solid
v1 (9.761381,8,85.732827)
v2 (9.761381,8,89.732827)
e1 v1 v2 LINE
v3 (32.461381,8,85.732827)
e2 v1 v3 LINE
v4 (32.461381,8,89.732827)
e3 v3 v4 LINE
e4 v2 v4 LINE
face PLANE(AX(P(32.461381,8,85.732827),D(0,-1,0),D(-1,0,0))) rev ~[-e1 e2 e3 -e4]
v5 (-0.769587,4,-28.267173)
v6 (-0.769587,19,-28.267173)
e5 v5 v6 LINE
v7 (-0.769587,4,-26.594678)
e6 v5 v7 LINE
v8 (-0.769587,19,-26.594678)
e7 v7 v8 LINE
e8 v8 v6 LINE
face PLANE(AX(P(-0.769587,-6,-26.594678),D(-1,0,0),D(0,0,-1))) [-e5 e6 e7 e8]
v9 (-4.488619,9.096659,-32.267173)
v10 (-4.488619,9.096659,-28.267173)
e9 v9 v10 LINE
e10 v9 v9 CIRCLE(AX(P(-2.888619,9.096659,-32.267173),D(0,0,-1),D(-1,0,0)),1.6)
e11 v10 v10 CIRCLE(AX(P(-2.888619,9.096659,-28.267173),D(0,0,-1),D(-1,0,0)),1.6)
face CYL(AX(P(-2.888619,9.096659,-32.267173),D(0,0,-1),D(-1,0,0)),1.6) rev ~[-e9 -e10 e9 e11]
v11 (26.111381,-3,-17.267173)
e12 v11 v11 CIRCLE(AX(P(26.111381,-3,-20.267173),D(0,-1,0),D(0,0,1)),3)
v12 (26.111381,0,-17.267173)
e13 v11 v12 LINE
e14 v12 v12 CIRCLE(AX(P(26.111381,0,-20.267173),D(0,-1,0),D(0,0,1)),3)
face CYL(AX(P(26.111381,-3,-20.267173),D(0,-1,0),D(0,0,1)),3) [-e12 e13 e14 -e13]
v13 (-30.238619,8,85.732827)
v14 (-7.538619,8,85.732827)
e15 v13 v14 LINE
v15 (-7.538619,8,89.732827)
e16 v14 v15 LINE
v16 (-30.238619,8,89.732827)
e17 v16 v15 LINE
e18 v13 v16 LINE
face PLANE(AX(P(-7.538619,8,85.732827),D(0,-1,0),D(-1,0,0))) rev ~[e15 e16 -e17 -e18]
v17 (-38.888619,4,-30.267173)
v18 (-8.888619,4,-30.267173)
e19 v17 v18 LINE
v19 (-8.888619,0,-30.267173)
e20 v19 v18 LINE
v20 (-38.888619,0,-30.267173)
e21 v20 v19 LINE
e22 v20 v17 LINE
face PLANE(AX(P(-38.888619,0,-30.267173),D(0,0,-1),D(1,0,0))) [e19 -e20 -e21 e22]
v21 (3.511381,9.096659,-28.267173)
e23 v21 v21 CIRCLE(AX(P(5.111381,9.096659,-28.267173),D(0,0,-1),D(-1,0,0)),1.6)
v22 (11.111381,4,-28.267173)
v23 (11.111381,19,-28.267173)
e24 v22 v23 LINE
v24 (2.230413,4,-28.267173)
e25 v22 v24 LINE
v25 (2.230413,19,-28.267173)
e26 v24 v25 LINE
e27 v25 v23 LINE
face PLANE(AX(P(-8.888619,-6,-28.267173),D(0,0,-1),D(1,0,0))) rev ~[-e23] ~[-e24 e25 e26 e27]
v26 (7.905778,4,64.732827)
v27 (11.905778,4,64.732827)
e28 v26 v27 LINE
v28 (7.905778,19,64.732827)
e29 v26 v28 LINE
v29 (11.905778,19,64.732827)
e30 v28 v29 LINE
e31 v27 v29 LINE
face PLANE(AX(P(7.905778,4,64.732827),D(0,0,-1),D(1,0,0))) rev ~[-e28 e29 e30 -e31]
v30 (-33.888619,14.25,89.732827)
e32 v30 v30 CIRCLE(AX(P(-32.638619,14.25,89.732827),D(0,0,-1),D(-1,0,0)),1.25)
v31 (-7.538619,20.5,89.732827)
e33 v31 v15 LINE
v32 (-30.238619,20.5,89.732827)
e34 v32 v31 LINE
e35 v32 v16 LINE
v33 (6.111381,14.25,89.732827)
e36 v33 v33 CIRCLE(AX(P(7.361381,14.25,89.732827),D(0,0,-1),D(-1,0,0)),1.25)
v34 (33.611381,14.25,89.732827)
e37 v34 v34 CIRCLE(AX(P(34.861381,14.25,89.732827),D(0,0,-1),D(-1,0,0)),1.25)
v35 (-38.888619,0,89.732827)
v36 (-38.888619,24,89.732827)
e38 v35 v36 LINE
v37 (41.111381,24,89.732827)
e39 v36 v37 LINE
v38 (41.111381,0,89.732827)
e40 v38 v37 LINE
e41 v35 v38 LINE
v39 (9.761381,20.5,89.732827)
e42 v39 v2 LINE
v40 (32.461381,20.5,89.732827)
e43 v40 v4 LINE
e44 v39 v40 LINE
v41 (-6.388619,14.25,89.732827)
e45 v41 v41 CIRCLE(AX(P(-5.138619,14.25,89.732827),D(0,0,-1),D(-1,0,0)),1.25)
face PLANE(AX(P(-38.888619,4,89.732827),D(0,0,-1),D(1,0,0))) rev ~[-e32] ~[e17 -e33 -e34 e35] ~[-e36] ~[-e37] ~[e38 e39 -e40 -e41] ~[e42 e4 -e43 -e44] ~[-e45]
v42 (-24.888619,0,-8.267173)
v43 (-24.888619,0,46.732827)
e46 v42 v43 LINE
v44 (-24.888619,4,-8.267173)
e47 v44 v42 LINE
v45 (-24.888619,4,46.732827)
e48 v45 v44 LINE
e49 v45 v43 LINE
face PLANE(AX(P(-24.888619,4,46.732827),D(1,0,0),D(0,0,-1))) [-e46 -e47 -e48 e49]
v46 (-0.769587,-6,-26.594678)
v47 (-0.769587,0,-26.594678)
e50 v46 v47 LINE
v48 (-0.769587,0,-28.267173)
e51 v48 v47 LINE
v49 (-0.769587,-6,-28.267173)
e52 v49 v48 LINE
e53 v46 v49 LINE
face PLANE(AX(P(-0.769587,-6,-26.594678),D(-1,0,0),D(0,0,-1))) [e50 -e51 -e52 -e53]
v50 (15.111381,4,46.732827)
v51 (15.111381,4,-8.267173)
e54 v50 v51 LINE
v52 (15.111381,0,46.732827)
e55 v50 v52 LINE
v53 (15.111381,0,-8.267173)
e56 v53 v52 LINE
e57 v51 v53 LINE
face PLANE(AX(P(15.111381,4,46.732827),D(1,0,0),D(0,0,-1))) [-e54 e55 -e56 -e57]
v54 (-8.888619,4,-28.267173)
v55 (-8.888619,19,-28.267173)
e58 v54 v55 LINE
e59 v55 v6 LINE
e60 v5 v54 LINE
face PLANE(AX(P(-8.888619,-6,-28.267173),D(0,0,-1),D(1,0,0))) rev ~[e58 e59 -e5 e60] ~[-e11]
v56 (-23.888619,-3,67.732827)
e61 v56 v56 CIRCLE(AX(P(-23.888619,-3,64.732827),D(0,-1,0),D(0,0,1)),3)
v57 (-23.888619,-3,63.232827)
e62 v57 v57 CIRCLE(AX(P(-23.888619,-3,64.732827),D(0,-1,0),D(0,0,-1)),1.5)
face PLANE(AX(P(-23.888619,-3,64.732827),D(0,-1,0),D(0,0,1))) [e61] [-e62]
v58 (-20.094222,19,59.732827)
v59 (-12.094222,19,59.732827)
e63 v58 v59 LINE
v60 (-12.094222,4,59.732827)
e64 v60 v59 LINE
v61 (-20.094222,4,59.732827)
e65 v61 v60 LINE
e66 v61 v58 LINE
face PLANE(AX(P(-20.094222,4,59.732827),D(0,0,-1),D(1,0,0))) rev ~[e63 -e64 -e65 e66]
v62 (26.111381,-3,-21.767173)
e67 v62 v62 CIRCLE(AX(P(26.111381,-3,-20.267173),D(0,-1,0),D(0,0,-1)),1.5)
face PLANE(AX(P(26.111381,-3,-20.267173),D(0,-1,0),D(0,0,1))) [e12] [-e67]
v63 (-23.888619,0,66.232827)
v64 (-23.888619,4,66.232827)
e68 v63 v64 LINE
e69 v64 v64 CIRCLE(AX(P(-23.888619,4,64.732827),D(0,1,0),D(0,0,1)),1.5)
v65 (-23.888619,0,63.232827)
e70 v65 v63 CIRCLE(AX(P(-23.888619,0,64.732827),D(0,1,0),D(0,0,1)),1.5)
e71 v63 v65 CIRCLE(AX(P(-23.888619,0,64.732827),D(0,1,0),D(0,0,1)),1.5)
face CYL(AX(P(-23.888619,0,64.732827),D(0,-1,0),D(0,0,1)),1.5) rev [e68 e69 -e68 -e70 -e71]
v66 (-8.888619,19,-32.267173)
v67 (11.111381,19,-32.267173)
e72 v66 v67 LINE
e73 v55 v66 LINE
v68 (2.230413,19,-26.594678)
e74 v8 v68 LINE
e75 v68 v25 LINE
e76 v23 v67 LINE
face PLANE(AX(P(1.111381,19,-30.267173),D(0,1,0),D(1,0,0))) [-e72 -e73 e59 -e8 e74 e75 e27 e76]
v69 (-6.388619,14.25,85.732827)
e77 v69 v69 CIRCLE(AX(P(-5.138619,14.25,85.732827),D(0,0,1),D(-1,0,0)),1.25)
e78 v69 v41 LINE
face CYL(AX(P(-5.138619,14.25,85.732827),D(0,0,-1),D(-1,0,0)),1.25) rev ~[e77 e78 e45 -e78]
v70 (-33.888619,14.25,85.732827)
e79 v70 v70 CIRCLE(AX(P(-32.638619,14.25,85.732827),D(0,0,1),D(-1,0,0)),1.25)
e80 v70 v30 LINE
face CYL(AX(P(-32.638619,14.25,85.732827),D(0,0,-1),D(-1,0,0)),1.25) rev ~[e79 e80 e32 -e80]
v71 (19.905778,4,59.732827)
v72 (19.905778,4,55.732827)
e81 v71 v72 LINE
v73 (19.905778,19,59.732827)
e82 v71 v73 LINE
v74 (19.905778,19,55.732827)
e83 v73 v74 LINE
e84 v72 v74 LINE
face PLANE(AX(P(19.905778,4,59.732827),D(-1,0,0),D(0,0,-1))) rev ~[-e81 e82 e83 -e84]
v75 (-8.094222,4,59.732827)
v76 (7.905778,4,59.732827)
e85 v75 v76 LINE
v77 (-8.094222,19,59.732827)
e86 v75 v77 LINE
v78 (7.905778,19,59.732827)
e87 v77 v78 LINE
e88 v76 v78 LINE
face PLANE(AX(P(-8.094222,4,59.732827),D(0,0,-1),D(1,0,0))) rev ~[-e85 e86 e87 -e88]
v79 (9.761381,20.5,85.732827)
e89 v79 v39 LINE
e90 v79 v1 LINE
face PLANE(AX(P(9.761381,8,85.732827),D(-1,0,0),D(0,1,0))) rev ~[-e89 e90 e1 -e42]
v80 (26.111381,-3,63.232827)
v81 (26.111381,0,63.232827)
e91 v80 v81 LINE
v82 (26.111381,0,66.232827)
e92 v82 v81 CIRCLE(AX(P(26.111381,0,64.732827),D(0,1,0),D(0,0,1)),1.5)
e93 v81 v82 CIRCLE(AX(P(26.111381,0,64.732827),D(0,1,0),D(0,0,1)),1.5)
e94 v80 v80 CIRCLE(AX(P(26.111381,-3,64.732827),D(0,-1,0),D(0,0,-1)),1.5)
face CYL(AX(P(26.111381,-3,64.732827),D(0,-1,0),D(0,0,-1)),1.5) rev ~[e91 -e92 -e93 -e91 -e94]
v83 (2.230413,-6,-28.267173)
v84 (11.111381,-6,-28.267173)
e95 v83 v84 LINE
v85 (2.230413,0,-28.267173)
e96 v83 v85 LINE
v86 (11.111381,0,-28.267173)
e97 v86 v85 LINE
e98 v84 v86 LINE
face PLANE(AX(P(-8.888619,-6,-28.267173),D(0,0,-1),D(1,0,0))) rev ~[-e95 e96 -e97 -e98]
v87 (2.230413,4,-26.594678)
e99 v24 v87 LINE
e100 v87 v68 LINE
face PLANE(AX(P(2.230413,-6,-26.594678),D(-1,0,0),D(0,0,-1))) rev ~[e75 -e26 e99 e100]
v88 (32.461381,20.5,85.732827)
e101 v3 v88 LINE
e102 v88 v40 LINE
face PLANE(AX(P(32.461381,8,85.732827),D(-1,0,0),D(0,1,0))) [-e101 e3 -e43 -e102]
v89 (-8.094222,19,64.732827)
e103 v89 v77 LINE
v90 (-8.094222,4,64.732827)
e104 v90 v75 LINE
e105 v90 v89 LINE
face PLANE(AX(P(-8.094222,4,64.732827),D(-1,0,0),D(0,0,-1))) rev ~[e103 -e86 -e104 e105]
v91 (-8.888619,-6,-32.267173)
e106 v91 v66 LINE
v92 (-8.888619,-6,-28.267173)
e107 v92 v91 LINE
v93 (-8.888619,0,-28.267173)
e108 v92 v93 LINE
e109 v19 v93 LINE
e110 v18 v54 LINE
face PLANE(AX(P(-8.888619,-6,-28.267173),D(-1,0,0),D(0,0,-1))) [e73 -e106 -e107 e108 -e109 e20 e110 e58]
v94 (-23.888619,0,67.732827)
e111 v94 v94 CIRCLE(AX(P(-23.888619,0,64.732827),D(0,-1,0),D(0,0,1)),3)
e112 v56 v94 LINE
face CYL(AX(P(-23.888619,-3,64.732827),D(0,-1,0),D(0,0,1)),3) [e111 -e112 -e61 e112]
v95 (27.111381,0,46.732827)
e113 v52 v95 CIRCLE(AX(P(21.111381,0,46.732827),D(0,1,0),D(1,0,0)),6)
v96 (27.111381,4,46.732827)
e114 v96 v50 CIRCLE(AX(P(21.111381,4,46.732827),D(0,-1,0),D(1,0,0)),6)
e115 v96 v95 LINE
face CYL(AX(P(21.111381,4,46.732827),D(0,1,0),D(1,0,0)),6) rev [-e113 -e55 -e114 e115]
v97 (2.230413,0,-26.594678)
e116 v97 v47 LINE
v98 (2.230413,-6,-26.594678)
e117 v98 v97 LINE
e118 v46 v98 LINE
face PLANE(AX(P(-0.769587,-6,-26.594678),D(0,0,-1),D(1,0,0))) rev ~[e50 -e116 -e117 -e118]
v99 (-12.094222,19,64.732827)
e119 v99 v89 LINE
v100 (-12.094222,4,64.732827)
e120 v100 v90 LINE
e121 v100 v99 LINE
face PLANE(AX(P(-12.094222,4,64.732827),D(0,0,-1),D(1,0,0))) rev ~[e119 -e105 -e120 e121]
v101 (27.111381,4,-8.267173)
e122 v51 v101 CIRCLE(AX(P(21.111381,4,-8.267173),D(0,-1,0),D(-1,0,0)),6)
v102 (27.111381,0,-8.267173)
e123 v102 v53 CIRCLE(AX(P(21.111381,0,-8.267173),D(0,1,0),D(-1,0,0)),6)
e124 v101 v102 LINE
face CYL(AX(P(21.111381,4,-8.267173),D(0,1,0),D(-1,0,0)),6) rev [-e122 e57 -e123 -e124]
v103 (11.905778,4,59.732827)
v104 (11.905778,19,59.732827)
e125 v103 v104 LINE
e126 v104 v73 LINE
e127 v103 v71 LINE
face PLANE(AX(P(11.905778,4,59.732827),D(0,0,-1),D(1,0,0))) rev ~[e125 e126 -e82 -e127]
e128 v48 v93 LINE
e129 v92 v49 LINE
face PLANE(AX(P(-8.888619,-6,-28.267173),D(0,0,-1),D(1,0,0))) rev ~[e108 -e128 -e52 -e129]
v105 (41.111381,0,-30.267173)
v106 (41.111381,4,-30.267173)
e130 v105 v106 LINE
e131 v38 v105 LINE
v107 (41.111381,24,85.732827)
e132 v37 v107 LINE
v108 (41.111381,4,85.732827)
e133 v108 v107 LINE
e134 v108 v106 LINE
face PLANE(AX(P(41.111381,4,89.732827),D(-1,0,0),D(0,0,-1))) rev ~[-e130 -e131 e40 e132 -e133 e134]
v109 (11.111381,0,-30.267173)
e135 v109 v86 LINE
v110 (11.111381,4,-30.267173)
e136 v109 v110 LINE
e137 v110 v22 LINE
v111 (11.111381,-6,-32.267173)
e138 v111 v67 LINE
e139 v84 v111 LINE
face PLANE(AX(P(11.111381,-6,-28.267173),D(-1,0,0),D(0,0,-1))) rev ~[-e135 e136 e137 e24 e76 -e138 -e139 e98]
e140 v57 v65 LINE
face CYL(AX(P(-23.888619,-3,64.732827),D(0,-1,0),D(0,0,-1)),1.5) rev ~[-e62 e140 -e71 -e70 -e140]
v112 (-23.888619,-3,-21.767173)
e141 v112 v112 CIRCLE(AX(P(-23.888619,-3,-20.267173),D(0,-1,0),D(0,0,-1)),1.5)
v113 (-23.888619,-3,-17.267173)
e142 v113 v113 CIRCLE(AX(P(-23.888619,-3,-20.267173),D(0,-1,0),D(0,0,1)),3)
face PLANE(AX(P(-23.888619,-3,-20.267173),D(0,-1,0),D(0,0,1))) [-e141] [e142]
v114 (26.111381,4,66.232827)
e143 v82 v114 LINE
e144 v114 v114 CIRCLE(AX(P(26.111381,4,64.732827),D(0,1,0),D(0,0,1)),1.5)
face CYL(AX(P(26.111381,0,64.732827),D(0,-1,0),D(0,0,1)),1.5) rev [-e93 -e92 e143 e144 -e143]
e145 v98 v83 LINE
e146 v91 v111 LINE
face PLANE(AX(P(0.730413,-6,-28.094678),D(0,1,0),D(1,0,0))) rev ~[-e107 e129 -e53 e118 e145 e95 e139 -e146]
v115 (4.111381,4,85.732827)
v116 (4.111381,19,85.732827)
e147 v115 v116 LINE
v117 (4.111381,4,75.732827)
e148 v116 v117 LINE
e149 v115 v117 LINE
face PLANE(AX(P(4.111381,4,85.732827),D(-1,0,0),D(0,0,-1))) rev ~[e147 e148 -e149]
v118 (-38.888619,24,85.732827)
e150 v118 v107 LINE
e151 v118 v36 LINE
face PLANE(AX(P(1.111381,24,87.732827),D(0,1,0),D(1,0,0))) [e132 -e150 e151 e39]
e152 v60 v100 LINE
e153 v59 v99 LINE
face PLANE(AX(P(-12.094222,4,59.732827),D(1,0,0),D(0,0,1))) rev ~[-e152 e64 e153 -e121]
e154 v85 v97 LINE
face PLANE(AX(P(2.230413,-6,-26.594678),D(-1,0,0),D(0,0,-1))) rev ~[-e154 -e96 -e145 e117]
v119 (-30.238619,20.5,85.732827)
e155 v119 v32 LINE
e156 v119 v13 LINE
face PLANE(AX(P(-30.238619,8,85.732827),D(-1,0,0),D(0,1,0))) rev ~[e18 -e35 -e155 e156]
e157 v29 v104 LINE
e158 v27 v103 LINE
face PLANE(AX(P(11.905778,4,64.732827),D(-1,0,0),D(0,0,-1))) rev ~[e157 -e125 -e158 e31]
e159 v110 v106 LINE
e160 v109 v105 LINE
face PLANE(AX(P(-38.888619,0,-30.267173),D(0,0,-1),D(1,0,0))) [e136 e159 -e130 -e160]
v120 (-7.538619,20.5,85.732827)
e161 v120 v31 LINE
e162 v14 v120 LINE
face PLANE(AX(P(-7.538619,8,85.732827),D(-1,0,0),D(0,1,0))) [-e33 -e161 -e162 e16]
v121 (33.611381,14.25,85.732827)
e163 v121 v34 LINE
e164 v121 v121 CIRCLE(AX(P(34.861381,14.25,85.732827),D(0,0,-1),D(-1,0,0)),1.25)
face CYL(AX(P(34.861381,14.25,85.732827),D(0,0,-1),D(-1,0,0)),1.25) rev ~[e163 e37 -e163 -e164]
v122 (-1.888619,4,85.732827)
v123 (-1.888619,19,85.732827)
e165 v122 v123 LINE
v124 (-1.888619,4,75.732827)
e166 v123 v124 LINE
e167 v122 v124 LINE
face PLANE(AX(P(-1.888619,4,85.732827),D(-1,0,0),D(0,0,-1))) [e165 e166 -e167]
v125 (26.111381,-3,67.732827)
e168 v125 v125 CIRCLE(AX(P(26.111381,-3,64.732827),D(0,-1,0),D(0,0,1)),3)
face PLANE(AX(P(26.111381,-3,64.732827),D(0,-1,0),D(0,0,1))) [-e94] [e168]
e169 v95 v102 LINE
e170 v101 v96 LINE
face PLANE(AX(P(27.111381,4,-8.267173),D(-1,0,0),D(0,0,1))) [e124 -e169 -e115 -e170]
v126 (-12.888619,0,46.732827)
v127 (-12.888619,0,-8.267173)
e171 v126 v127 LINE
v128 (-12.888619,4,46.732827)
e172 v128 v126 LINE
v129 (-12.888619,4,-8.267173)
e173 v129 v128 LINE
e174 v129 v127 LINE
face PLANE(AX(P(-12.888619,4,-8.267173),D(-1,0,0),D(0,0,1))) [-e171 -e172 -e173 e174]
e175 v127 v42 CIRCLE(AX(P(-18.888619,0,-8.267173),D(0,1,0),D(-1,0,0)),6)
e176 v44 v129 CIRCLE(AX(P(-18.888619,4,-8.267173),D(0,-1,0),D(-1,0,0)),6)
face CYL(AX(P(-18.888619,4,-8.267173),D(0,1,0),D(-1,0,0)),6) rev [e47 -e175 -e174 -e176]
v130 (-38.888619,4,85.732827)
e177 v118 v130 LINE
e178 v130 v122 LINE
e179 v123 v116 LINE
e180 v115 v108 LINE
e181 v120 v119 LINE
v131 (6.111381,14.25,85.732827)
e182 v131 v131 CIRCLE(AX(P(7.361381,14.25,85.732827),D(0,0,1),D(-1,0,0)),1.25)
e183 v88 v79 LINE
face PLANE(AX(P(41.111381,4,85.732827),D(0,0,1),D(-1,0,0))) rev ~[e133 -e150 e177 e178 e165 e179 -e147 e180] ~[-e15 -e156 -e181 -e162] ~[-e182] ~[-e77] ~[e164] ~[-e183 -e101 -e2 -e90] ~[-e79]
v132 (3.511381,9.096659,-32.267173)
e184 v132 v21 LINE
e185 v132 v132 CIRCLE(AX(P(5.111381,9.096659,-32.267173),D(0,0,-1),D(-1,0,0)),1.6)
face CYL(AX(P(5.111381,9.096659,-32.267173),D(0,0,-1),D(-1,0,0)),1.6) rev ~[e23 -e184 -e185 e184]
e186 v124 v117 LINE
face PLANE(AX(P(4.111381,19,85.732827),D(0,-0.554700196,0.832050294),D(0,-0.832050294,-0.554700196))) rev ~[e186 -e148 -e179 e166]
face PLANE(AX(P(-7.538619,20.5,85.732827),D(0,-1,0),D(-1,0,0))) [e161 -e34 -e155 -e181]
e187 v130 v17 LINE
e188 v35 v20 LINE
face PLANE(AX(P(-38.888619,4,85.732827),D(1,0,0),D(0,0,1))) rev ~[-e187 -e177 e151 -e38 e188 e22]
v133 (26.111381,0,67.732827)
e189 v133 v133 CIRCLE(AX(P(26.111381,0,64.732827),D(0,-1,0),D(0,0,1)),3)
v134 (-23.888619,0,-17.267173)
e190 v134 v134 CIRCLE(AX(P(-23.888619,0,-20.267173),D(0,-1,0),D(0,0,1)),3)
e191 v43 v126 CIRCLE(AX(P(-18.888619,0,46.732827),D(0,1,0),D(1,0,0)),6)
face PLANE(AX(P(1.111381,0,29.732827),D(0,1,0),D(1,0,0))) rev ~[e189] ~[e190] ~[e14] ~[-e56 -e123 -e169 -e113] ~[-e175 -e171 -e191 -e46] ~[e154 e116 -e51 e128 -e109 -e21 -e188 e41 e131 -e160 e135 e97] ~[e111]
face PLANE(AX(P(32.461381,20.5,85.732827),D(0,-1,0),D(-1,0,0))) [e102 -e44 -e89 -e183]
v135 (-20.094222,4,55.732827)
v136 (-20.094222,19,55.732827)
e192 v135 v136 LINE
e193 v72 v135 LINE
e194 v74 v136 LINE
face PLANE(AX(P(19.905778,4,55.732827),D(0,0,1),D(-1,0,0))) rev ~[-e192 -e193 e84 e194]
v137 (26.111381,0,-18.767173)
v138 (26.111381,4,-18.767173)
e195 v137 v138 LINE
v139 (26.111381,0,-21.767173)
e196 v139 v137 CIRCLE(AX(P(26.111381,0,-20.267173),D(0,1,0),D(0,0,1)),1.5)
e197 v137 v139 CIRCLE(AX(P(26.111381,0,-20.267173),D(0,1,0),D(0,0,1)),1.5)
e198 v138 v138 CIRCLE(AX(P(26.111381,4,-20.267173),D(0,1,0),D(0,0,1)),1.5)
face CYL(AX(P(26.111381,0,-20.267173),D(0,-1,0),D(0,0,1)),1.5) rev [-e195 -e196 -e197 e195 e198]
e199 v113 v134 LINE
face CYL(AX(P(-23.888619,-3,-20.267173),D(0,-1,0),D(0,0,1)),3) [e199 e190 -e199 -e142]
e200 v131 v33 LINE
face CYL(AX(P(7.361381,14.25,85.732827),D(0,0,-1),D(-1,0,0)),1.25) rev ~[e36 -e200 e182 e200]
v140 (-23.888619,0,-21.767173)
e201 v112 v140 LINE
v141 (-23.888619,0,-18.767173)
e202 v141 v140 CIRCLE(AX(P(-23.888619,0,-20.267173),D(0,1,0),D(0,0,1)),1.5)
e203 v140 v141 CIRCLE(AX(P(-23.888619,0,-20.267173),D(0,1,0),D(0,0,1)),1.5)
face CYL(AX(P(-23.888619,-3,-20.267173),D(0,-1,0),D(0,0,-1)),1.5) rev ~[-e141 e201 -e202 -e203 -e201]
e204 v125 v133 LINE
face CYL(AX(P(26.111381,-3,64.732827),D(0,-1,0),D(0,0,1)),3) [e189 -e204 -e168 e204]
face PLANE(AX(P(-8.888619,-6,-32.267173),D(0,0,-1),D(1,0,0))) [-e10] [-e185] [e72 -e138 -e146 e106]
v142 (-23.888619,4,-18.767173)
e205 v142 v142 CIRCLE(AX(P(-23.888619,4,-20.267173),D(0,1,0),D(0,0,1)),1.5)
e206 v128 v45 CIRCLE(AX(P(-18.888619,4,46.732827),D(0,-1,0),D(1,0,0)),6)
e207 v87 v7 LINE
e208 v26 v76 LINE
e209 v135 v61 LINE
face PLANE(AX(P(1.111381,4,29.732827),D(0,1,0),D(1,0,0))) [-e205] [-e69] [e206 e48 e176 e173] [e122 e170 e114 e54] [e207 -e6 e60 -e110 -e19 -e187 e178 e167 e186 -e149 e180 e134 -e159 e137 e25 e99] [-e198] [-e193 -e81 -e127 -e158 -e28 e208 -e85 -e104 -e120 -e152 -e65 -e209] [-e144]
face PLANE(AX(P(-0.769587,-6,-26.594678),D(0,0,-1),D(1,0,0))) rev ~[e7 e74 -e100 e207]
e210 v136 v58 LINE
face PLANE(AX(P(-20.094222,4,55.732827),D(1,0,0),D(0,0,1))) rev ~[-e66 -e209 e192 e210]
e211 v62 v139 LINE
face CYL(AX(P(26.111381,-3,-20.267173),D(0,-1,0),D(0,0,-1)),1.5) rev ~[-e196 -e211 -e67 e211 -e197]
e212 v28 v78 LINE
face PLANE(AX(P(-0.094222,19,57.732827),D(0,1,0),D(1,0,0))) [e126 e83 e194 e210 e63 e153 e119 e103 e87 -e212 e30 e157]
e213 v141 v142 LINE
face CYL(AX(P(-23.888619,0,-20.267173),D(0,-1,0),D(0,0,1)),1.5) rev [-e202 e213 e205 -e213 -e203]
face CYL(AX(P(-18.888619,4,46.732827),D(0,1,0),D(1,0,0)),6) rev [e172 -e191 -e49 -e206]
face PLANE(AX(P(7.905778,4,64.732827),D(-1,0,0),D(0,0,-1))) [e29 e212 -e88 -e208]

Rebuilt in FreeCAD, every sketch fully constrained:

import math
import FreeCAD as App
import Part
import Sketcher

doc = App.newDocument("Part")
body = doc.addObject("PartDesign::Body", "Body")

# Sketch on XZ plane
sketch1 = body.newObject("Sketcher::SketchObject", "Sketch")
sketch1.AttachmentSupport = (doc.getObject("XZ_Plane"), [""])
sketch1.MapMode = "FlatFace"
sketch1.addGeometry([
    Part.LineSegment(App.Vector(-38.9, -30.3, 0), App.Vector(-38.9, 89.7, 0)),  # 0
    Part.LineSegment(App.Vector(-38.9, 89.7, 0), App.Vector(41.1, 89.7, 0)),  # 1
    Part.LineSegment(App.Vector(41.1, 89.7, 0), App.Vector(41.1, -30.3, 0)),  # 2
    Part.LineSegment(App.Vector(41.1, -30.3, 0), App.Vector(-38.9, -30.3, 0)),  # 3
    Part.Circle(App.Vector(-23.9, 64.7, 0), App.Vector(0, 0, 1), 1.5),  # 4
    Part.Circle(App.Vector(26.1, 64.7, 0), App.Vector(0, 0, 1), 1.5),  # 5
    Part.Circle(App.Vector(-23.9, -20.3, 0), App.Vector(0, 0, 1), 1.5),  # 6
    Part.Circle(App.Vector(26.1, -20.3, 0), App.Vector(0, 0, 1), 1.5),  # 7
], False)
sketch1.addConstraint([
    Sketcher.Constraint("Coincident", 0, 2, 1, 1),
    Sketcher.Constraint("Coincident", 1, 2, 2, 1),
    Sketcher.Constraint("Coincident", 2, 2, 3, 1),
    Sketcher.Constraint("Coincident", 3, 2, 0, 1),
    Sketcher.Constraint("Vertical", 0),
    Sketcher.Constraint("Horizontal", 1),
    Sketcher.Constraint("Vertical", 2),
    Sketcher.Constraint("Horizontal", 3),
    Sketcher.Constraint("Equal", 4, 5),
    Sketcher.Constraint("Equal", 5, 6),
    Sketcher.Constraint("Equal", 6, 7),
    Sketcher.Constraint("Horizontal", 4, 3, 5, 3),
    Sketcher.Constraint("Horizontal", 6, 3, 7, 3),
    Sketcher.Constraint("Vertical", 4, 3, 6, 3),
    Sketcher.Constraint("Vertical", 5, 3, 7, 3),
    Sketcher.Constraint("Diameter", 4, 3.0),
    Sketcher.Constraint("DistanceX", 1, 1, 1, 2, 80.0),
    Sketcher.Constraint("DistanceY", 0, 1, 0, 2, 120.0),
    Sketcher.Constraint("DistanceX", 4, 3, 5, 3, 50.0),
    Sketcher.Constraint("DistanceY", 6, 3, 4, 3, 85.0),
    Sketcher.Constraint("DistanceX", 0, 2, 4, 3, 15.0),
    Sketcher.Constraint("DistanceY", 4, 3, 0, 2, 25.0),
    Sketcher.Constraint("DistanceX", 4, 3, -1, 1, 23.888619),
    Sketcher.Constraint("DistanceY", -1, 1, 4, 3, 64.732827),
])
pad1 = body.newObject("PartDesign::Pad", "Pad")
pad1.Profile = sketch1
pad1.Length = 4
pad1.Reversed = True

# Sketch on XZ plane
sketch2 = body.newObject("Sketcher::SketchObject", "Sketch001")
sketch2.AttachmentSupport = (doc.getObject("XZ_Plane"), [""])
sketch2.MapMode = "FlatFace"
sketch2.AttachmentOffset = App.Placement(App.Vector(0, 0, -4), App.Rotation())
sketch2.addGeometry([
    Part.LineSegment(App.Vector(-38.9, 85.7, 0), App.Vector(-38.9, 89.7, 0)),  # 0
    Part.LineSegment(App.Vector(-38.9, 89.7, 0), App.Vector(41.1, 89.7, 0)),  # 1
    Part.LineSegment(App.Vector(41.1, 89.7, 0), App.Vector(41.1, 85.7, 0)),  # 2
    Part.LineSegment(App.Vector(41.1, 85.7, 0), App.Vector(26.1, 85.7, 0)),  # 3
    Part.LineSegment(App.Vector(26.1, 85.7, 0), App.Vector(26.1, 75.7, 0)),  # 4
    Part.LineSegment(App.Vector(26.1, 75.7, 0), App.Vector(22.1, 75.7, 0)),  # 5
    Part.LineSegment(App.Vector(22.1, 75.7, 0), App.Vector(22.1, 85.7, 0)),  # 6
    Part.LineSegment(App.Vector(22.1, 85.7, 0), App.Vector(-19.9, 85.7, 0)),  # 7
    Part.LineSegment(App.Vector(-19.9, 85.7, 0), App.Vector(-19.9, 75.7, 0)),  # 8
    Part.LineSegment(App.Vector(-19.9, 75.7, 0), App.Vector(-23.9, 75.7, 0)),  # 9
    Part.LineSegment(App.Vector(-23.9, 75.7, 0), App.Vector(-23.9, 85.7, 0)),  # 10
    Part.LineSegment(App.Vector(-23.9, 85.7, 0), App.Vector(-38.9, 85.7, 0)),  # 11
], False)
sketch2.addConstraint([
    Sketcher.Constraint("Coincident", 0, 2, 1, 1),
    Sketcher.Constraint("Coincident", 1, 2, 2, 1),
    Sketcher.Constraint("Coincident", 2, 2, 3, 1),
    Sketcher.Constraint("Coincident", 3, 2, 4, 1),
    Sketcher.Constraint("Coincident", 4, 2, 5, 1),
    Sketcher.Constraint("Coincident", 5, 2, 6, 1),
    Sketcher.Constraint("Coincident", 6, 2, 7, 1),
    Sketcher.Constraint("Coincident", 7, 2, 8, 1),
    Sketcher.Constraint("Coincident", 8, 2, 9, 1),
    Sketcher.Constraint("Coincident", 9, 2, 10, 1),
    Sketcher.Constraint("Coincident", 10, 2, 11, 1),
    Sketcher.Constraint("Coincident", 11, 2, 0, 1),
    Sketcher.Constraint("Vertical", 0),
    Sketcher.Constraint("Horizontal", 1),
    Sketcher.Constraint("Vertical", 2),
    Sketcher.Constraint("Horizontal", 3),
    Sketcher.Constraint("Vertical", 4),
    Sketcher.Constraint("Horizontal", 5),
    Sketcher.Constraint("Vertical", 6),
    Sketcher.Constraint("Horizontal", 7),
    Sketcher.Constraint("Vertical", 8),
    Sketcher.Constraint("Horizontal", 9),
    Sketcher.Constraint("Vertical", 10),
    Sketcher.Constraint("Horizontal", 11),
    Sketcher.Constraint("Horizontal", 3, 2, 6, 2),
    Sketcher.Constraint("Horizontal", 5, 2, 8, 2),
    Sketcher.Constraint("Horizontal", 7, 2, 10, 2),
    Sketcher.Constraint("Equal", 5, 9),
    Sketcher.Constraint("Equal", 3, 11),
    Sketcher.Constraint("Equal", 9, 0),
    Sketcher.Constraint("DistanceX", 1, 1, 1, 2, 80.0),
    Sketcher.Constraint("DistanceX", 3, 2, 3, 1, 15.0),
    Sketcher.Constraint("DistanceX", 5, 2, 5, 1, 4.0),
    Sketcher.Constraint("DistanceY", 4, 2, 4, 1, 10.0),
    Sketcher.Constraint("DistanceX", 0, 2, -1, 1, 38.888619),
    Sketcher.Constraint("DistanceY", -1, 1, 0, 2, 89.732827),
])
pad2 = body.newObject("PartDesign::Pad", "Pad001")
pad2.Profile = sketch2
pad2.Length = 20
pad2.Reversed = True

# Sketch on XZ plane
sketch3 = body.newObject("Sketcher::SketchObject", "Sketch002")
sketch3.AttachmentSupport = (doc.getObject("XZ_Plane"), [""])
sketch3.MapMode = "FlatFace"
sketch3.AttachmentOffset = App.Placement(App.Vector(0, 0, -4), App.Rotation())
sketch3.addGeometry([
    Part.LineSegment(App.Vector(-8.9, -32.3, 0), App.Vector(-8.9, -28.3, 0)),
    Part.LineSegment(App.Vector(-8.9, -28.3, 0), App.Vector(11.1, -28.3, 0)),
    Part.LineSegment(App.Vector(11.1, -28.3, 0), App.Vector(11.1, -32.3, 0)),
    Part.LineSegment(App.Vector(11.1, -32.3, 0), App.Vector(-8.9, -32.3, 0)),
], False)
sketch3.addConstraint([
    Sketcher.Constraint("Coincident", 0, 2, 1, 1),
    Sketcher.Constraint("Coincident", 1, 2, 2, 1),
    Sketcher.Constraint("Coincident", 2, 2, 3, 1),
    Sketcher.Constraint("Coincident", 3, 2, 0, 1),
    Sketcher.Constraint("Vertical", 0),
    Sketcher.Constraint("Horizontal", 1),
    Sketcher.Constraint("Vertical", 2),
    Sketcher.Constraint("Horizontal", 3),
    Sketcher.Constraint("DistanceX", 1, 1, 1, 2, 20.0),
    Sketcher.Constraint("DistanceY", 0, 1, 0, 2, 4.0),
    Sketcher.Constraint("DistanceX", 0, 2, -1, 1, 8.888619),
    Sketcher.Constraint("DistanceY", 0, 2, -1, 1, 28.267173),
])
pad3 = body.newObject("PartDesign::Pad", "Pad002")
pad3.Profile = sketch3
pad3.Type = "TwoLengths"
pad3.Length = 15
pad3.Length2 = 10
pad3.Reversed = True

# Sketch on XY plane
sketch4 = body.newObject("Sketcher::SketchObject", "Sketch003")
sketch4.AttachmentSupport = (doc.getObject("XY_Plane"), [""])
sketch4.MapMode = "FlatFace"
sketch4.AttachmentOffset = App.Placement(App.Vector(0, 0, -32.267173), App.Rotation())
sketch4.addGeometry(Part.Circle(App.Vector(-2.9, 9.1, 0), App.Vector(0, 0, 1), 1.6), False)
sketch4.addConstraint([
    Sketcher.Constraint("Diameter", 0, 3.2),
    Sketcher.Constraint("DistanceX", 0, 3, -1, 1, 2.888619),
    Sketcher.Constraint("DistanceY", -1, 1, 0, 3, 9.096659),
])
pocket1 = body.newObject("PartDesign::Pocket", "Pocket")
pocket1.Profile = sketch4
pocket1.Type = "UpToFirst"
pocket1.Reversed = True

# Sketch on XY plane
sketch5 = body.newObject("Sketcher::SketchObject", "Sketch004")
sketch5.AttachmentSupport = (doc.getObject("XY_Plane"), [""])
sketch5.MapMode = "FlatFace"
sketch5.AttachmentOffset = App.Placement(App.Vector(0, 0, -32.267173), App.Rotation())
sketch5.addGeometry(Part.Circle(App.Vector(5.1, 9.1, 0), App.Vector(0, 0, 1), 1.6), False)
sketch5.addConstraint([
    Sketcher.Constraint("Diameter", 0, 3.2),
    Sketcher.Constraint("DistanceX", -1, 1, 0, 3, 5.111381),
    Sketcher.Constraint("DistanceY", -1, 1, 0, 3, 9.096659),
])
pocket2 = body.newObject("PartDesign::Pocket", "Pocket001")
pocket2.Profile = sketch5
pocket2.Type = "UpToFirst"
pocket2.Reversed = True

# Sketch on YZ plane
sketch6 = body.newObject("Sketcher::SketchObject", "Sketch005")
sketch6.AttachmentSupport = (doc.getObject("YZ_Plane"), [""])
sketch6.MapMode = "FlatFace"
sketch6.AttachmentOffset = App.Placement(App.Vector(0, 0, 26.111381), App.Rotation())
sketch6.addGeometry([
    Part.LineSegment(App.Vector(24, 76, 0), App.Vector(4, 76, 0)),
    Part.LineSegment(App.Vector(4, 76, 0), App.Vector(14, 86, 0)),
    Part.LineSegment(App.Vector(14, 86, 0), App.Vector(24, 86, 0)),
    Part.LineSegment(App.Vector(24, 86, 0), App.Vector(24, 76, 0)),
], False)
sketch6.addConstraint([
    Sketcher.Constraint("Coincident", 0, 2, 1, 1),
    Sketcher.Constraint("Coincident", 1, 2, 2, 1),
    Sketcher.Constraint("Coincident", 2, 2, 3, 1),
    Sketcher.Constraint("Coincident", 3, 2, 0, 1),
    Sketcher.Constraint("Horizontal", 0),
    Sketcher.Constraint("Horizontal", 2),
    Sketcher.Constraint("Vertical", 3),
    Sketcher.Constraint("Equal", 2, 3),
    Sketcher.Constraint("DistanceX", 0, 2, 0, 1, 20.0),
    Sketcher.Constraint("DistanceX", 2, 1, 2, 2, 10.0),
    Sketcher.Constraint("DistanceX", -1, 1, 0, 2, 4.0),
    Sketcher.Constraint("DistanceY", -1, 1, 0, 2, 75.732827),
])
pocket3 = body.newObject("PartDesign::Pocket", "Pocket002")
pocket3.Profile = sketch6
pocket3.Length = 50

# Sketch on XZ plane
sketch7 = body.newObject("Sketcher::SketchObject", "Sketch006")
sketch7.AttachmentSupport = (doc.getObject("XZ_Plane"), [""])
sketch7.MapMode = "FlatFace"
sketch7.AttachmentOffset = App.Placement(App.Vector(0, 0, -4), App.Rotation())
sketch7.addGeometry([
    Part.LineSegment(App.Vector(-0.8, -29.6, 0), App.Vector(-0.8, -26.6, 0)),
    Part.LineSegment(App.Vector(-0.8, -26.6, 0), App.Vector(2.2, -26.6, 0)),
    Part.LineSegment(App.Vector(2.2, -26.6, 0), App.Vector(2.2, -29.6, 0)),
    Part.LineSegment(App.Vector(2.2, -29.6, 0), App.Vector(-0.8, -29.6, 0)),
], False)
sketch7.addConstraint([
    Sketcher.Constraint("Coincident", 0, 2, 1, 1),
    Sketcher.Constraint("Coincident", 1, 2, 2, 1),
    Sketcher.Constraint("Coincident", 2, 2, 3, 1),
    Sketcher.Constraint("Coincident", 3, 2, 0, 1),
    Sketcher.Constraint("Vertical", 0),
    Sketcher.Constraint("Horizontal", 1),
    Sketcher.Constraint("Vertical", 2),
    Sketcher.Constraint("Horizontal", 3),
    Sketcher.Constraint("Equal", 3, 0),
    Sketcher.Constraint("DistanceX", 1, 1, 1, 2, 3.0),
    Sketcher.Constraint("DistanceX", 0, 2, -1, 1, 0.769587),
    Sketcher.Constraint("DistanceY", 0, 2, -1, 1, 26.594678),
])
pad4 = body.newObject("PartDesign::Pad", "Pad003")
pad4.Profile = sketch7
pad4.Type = "TwoLengths"
pad4.Length = 15
pad4.Length2 = 10
pad4.Reversed = True

# Sketch on XZ plane
sketch8 = body.newObject("Sketcher::SketchObject", "Sketch007")
sketch8.AttachmentSupport = (doc.getObject("XZ_Plane"), [""])
sketch8.MapMode = "FlatFace"
sketch8.AttachmentOffset = App.Placement(App.Vector(0, 0, -4), App.Rotation())
sketch8.addGeometry([
    Part.LineSegment(App.Vector(19.9, 55.7, 0), App.Vector(-20.1, 55.7, 0)),  # 0
    Part.LineSegment(App.Vector(-20.1, 55.7, 0), App.Vector(-20.1, 59.7, 0)),  # 1
    Part.LineSegment(App.Vector(-20.1, 59.7, 0), App.Vector(-12.1, 59.7, 0)),  # 2
    Part.LineSegment(App.Vector(-12.1, 59.7, 0), App.Vector(-12.1, 64.7, 0)),  # 3
    Part.LineSegment(App.Vector(-12.1, 64.7, 0), App.Vector(-8.1, 64.7, 0)),  # 4
    Part.LineSegment(App.Vector(-8.1, 64.7, 0), App.Vector(-8.1, 59.7, 0)),  # 5
    Part.LineSegment(App.Vector(-8.1, 59.7, 0), App.Vector(7.9, 59.7, 0)),  # 6
    Part.LineSegment(App.Vector(7.9, 59.7, 0), App.Vector(7.9, 64.7, 0)),  # 7
    Part.LineSegment(App.Vector(7.9, 64.7, 0), App.Vector(11.9, 64.7, 0)),  # 8
    Part.LineSegment(App.Vector(11.9, 64.7, 0), App.Vector(11.9, 59.7, 0)),  # 9
    Part.LineSegment(App.Vector(11.9, 59.7, 0), App.Vector(19.9, 59.7, 0)),  # 10
    Part.LineSegment(App.Vector(19.9, 59.7, 0), App.Vector(19.9, 55.7, 0)),  # 11
], False)
sketch8.addConstraint([
    Sketcher.Constraint("Coincident", 0, 2, 1, 1),
    Sketcher.Constraint("Coincident", 1, 2, 2, 1),
    Sketcher.Constraint("Coincident", 2, 2, 3, 1),
    Sketcher.Constraint("Coincident", 3, 2, 4, 1),
    Sketcher.Constraint("Coincident", 4, 2, 5, 1),
    Sketcher.Constraint("Coincident", 5, 2, 6, 1),
    Sketcher.Constraint("Coincident", 6, 2, 7, 1),
    Sketcher.Constraint("Coincident", 7, 2, 8, 1),
    Sketcher.Constraint("Coincident", 8, 2, 9, 1),
    Sketcher.Constraint("Coincident", 9, 2, 10, 1),
    Sketcher.Constraint("Coincident", 10, 2, 11, 1),
    Sketcher.Constraint("Coincident", 11, 2, 0, 1),
    Sketcher.Constraint("Horizontal", 0),
    Sketcher.Constraint("Vertical", 1),
    Sketcher.Constraint("Horizontal", 2),
    Sketcher.Constraint("Vertical", 3),
    Sketcher.Constraint("Horizontal", 4),
    Sketcher.Constraint("Vertical", 5),
    Sketcher.Constraint("Horizontal", 6),
    Sketcher.Constraint("Vertical", 7),
    Sketcher.Constraint("Horizontal", 8),
    Sketcher.Constraint("Vertical", 9),
    Sketcher.Constraint("Horizontal", 10),
    Sketcher.Constraint("Vertical", 11),
    Sketcher.Constraint("Horizontal", 2, 2, 5, 2),
    Sketcher.Constraint("Horizontal", 4, 2, 7, 2),
    Sketcher.Constraint("Horizontal", 6, 2, 9, 2),
    Sketcher.Constraint("Equal", 4, 8),
    Sketcher.Constraint("Equal", 2, 10),
    Sketcher.Constraint("Equal", 8, 1),
    Sketcher.Constraint("DistanceX", 0, 2, 0, 1, 40.0),
    Sketcher.Constraint("DistanceX", 2, 1, 2, 2, 8.0),
    Sketcher.Constraint("DistanceX", 4, 1, 4, 2, 4.0),
    Sketcher.Constraint("DistanceY", 3, 1, 3, 2, 5.0),
    Sketcher.Constraint("DistanceX", 0, 2, -1, 1, 20.094222),
    Sketcher.Constraint("DistanceY", -1, 1, 0, 2, 55.732827),
])
pad5 = body.newObject("PartDesign::Pad", "Pad004")
pad5.Profile = sketch8
pad5.Length = 15
pad5.Reversed = True

# Sketch on XZ plane
sketch9 = body.newObject("Sketcher::SketchObject", "Sketch008")
sketch9.AttachmentSupport = (doc.getObject("XZ_Plane"), [""])
sketch9.MapMode = "FlatFace"
sketch9.AttachmentOffset = App.Placement(App.Vector(0, 0, -4), App.Rotation())
sketch9.addGeometry([
    Part.LineSegment(App.Vector(27, 47, 0), App.Vector(27, -8, 0)),
    Part.ArcOfCircle(Part.Circle(App.Vector(21, -8, 0), App.Vector(0, 0, 1), 6), math.radians(180), math.radians(360)),
    Part.LineSegment(App.Vector(15, -8, 0), App.Vector(15, 47, 0)),
    Part.ArcOfCircle(Part.Circle(App.Vector(21, 47, 0), App.Vector(0, 0, 1), 6), math.radians(0), math.radians(180)),
], False)
sketch9.addConstraint([
    Sketcher.Constraint("Tangent", 0, 2, 1, 2),
    Sketcher.Constraint("Tangent", 1, 1, 2, 1),
    Sketcher.Constraint("Tangent", 2, 2, 3, 2),
    Sketcher.Constraint("Tangent", 3, 1, 0, 1),
    Sketcher.Constraint("Vertical", 0),
    Sketcher.Constraint("Vertical", 2),
    Sketcher.Constraint("Radius", 1, 6.0),
    Sketcher.Constraint("DistanceY", 0, 2, 0, 1, 55.0),
    Sketcher.Constraint("DistanceX", -1, 1, 1, 3, 21.111381),
    Sketcher.Constraint("DistanceY", 1, 3, -1, 1, 8.267173),
])
pocket4 = body.newObject("PartDesign::Pocket", "Pocket003")
pocket4.Profile = sketch9
pocket4.Type = "UpToFirst"
pocket4.Reversed = True

# Sketch on XZ plane
sketch10 = body.newObject("Sketcher::SketchObject", "Sketch009")
sketch10.AttachmentSupport = (doc.getObject("XZ_Plane"), [""])
sketch10.MapMode = "FlatFace"
sketch10.AttachmentOffset = App.Placement(App.Vector(0, 0, -4), App.Rotation())
sketch10.addGeometry([
    Part.LineSegment(App.Vector(-13, 47, 0), App.Vector(-13, -8, 0)),
    Part.ArcOfCircle(Part.Circle(App.Vector(-19, -8, 0), App.Vector(0, 0, 1), 6), math.radians(180), math.radians(360)),
    Part.LineSegment(App.Vector(-25, -8, 0), App.Vector(-25, 47, 0)),
    Part.ArcOfCircle(Part.Circle(App.Vector(-19, 47, 0), App.Vector(0, 0, 1), 6), math.radians(0), math.radians(180)),
], False)
sketch10.addConstraint([
    Sketcher.Constraint("Tangent", 0, 2, 1, 2),
    Sketcher.Constraint("Tangent", 1, 1, 2, 1),
    Sketcher.Constraint("Tangent", 2, 2, 3, 2),
    Sketcher.Constraint("Tangent", 3, 1, 0, 1),
    Sketcher.Constraint("Vertical", 0),
    Sketcher.Constraint("Vertical", 2),
    Sketcher.Constraint("Radius", 1, 6.0),
    Sketcher.Constraint("DistanceY", 0, 2, 0, 1, 55.0),
    Sketcher.Constraint("DistanceX", 1, 3, -1, 1, 18.888619),
    Sketcher.Constraint("DistanceY", 1, 3, -1, 1, 8.267173),
])
pocket5 = body.newObject("PartDesign::Pocket", "Pocket004")
pocket5.Profile = sketch10
pocket5.Type = "UpToFirst"
pocket5.Reversed = True

# Sketch on XY plane
sketch11 = body.newObject("Sketcher::SketchObject", "Sketch010")
sketch11.AttachmentSupport = (doc.getObject("XY_Plane"), [""])
sketch11.MapMode = "FlatFace"
sketch11.AttachmentOffset = App.Placement(App.Vector(0, 0, 85.732827), App.Rotation())
sketch11.addGeometry(Part.Circle(App.Vector(34.9, 14.2, 0), App.Vector(0, 0, 1), 1.2), False)
sketch11.addConstraint([
    Sketcher.Constraint("Diameter", 0, 2.5),
    Sketcher.Constraint("DistanceY", -1, 1, 0, 3, 14.25),
    Sketcher.Constraint("DistanceX", -1, 1, 0, 3, 34.861381),
])
pocket6 = body.newObject("PartDesign::Pocket", "Pocket005")
pocket6.Profile = sketch11
pocket6.Type = "UpToFirst"
pocket6.Reversed = True

# Sketch on XY plane
sketch12 = body.newObject("Sketcher::SketchObject", "Sketch011")
sketch12.AttachmentSupport = (doc.getObject("XY_Plane"), [""])
sketch12.MapMode = "FlatFace"
sketch12.AttachmentOffset = App.Placement(App.Vector(0, 0, 85.732827), App.Rotation())
sketch12.addGeometry(Part.Circle(App.Vector(7.4, 14.2, 0), App.Vector(0, 0, 1), 1.2), False)
sketch12.addConstraint([
    Sketcher.Constraint("Diameter", 0, 2.5),
    Sketcher.Constraint("DistanceY", -1, 1, 0, 3, 14.25),
    Sketcher.Constraint("DistanceX", -1, 1, 0, 3, 7.361381),
])
pocket7 = body.newObject("PartDesign::Pocket", "Pocket006")
pocket7.Profile = sketch12
pocket7.Type = "UpToFirst"
pocket7.Reversed = True

# Sketch on XY plane
sketch13 = body.newObject("Sketcher::SketchObject", "Sketch012")
sketch13.AttachmentSupport = (doc.getObject("XY_Plane"), [""])
sketch13.MapMode = "FlatFace"
sketch13.AttachmentOffset = App.Placement(App.Vector(0, 0, 85.732827), App.Rotation())
sketch13.addGeometry(Part.Circle(App.Vector(-5.1, 14.2, 0), App.Vector(0, 0, 1), 1.2), False)
sketch13.addConstraint([
    Sketcher.Constraint("Diameter", 0, 2.5),
    Sketcher.Constraint("DistanceY", -1, 1, 0, 3, 14.25),
    Sketcher.Constraint("DistanceX", 0, 3, -1, 1, 5.138619),
])
pocket8 = body.newObject("PartDesign::Pocket", "Pocket007")
pocket8.Profile = sketch13
pocket8.Type = "UpToFirst"
pocket8.Reversed = True

# Sketch on XY plane
sketch14 = body.newObject("Sketcher::SketchObject", "Sketch013")
sketch14.AttachmentSupport = (doc.getObject("XY_Plane"), [""])
sketch14.MapMode = "FlatFace"
sketch14.AttachmentOffset = App.Placement(App.Vector(0, 0, 85.732827), App.Rotation())
sketch14.addGeometry(Part.Circle(App.Vector(-32.6, 14.2, 0), App.Vector(0, 0, 1), 1.2), False)
sketch14.addConstraint([
    Sketcher.Constraint("Diameter", 0, 2.5),
    Sketcher.Constraint("DistanceY", -1, 1, 0, 3, 14.25),
    Sketcher.Constraint("DistanceX", 0, 3, -1, 1, 32.638619),
])
pocket9 = body.newObject("PartDesign::Pocket", "Pocket008")
pocket9.Profile = sketch14
pocket9.Type = "UpToFirst"
pocket9.Reversed = True

# Sketch on XY plane
sketch15 = body.newObject("Sketcher::SketchObject", "Sketch014")
sketch15.AttachmentSupport = (doc.getObject("XY_Plane"), [""])
sketch15.MapMode = "FlatFace"
sketch15.AttachmentOffset = App.Placement(App.Vector(0, 0, 85.732827), App.Rotation())
sketch15.addGeometry([
    Part.LineSegment(App.Vector(32, 20, 0), App.Vector(32, 8, 0)),
    Part.LineSegment(App.Vector(32, 8, 0), App.Vector(10, 8, 0)),
    Part.LineSegment(App.Vector(10, 8, 0), App.Vector(10, 20, 0)),
    Part.LineSegment(App.Vector(10, 20, 0), App.Vector(32, 20, 0)),
], False)
sketch15.addConstraint([
    Sketcher.Constraint("Coincident", 0, 2, 1, 1),
    Sketcher.Constraint("Coincident", 1, 2, 2, 1),
    Sketcher.Constraint("Coincident", 2, 2, 3, 1),
    Sketcher.Constraint("Coincident", 3, 2, 0, 1),
    Sketcher.Constraint("Vertical", 0),
    Sketcher.Constraint("Horizontal", 1),
    Sketcher.Constraint("Vertical", 2),
    Sketcher.Constraint("Horizontal", 3),
    Sketcher.Constraint("DistanceX", 1, 2, 1, 1, 22.7),
    Sketcher.Constraint("DistanceY", 0, 2, 0, 1, 12.5),
    Sketcher.Constraint("DistanceY", -1, 1, 0, 2, 8.0),
    Sketcher.Constraint("DistanceX", -1, 1, 0, 2, 32.461381),
])
pocket10 = body.newObject("PartDesign::Pocket", "Pocket009")
pocket10.Profile = sketch15
pocket10.Type = "UpToFirst"
pocket10.Reversed = True

# Sketch on XY plane
sketch16 = body.newObject("Sketcher::SketchObject", "Sketch015")
sketch16.AttachmentSupport = (doc.getObject("XY_Plane"), [""])
sketch16.MapMode = "FlatFace"
sketch16.AttachmentOffset = App.Placement(App.Vector(0, 0, 85.732827), App.Rotation())
sketch16.addGeometry([
    Part.LineSegment(App.Vector(-8, 20, 0), App.Vector(-8, 8, 0)),
    Part.LineSegment(App.Vector(-8, 8, 0), App.Vector(-30, 8, 0)),
    Part.LineSegment(App.Vector(-30, 8, 0), App.Vector(-30, 20, 0)),
    Part.LineSegment(App.Vector(-30, 20, 0), App.Vector(-8, 20, 0)),
], False)
sketch16.addConstraint([
    Sketcher.Constraint("Coincident", 0, 2, 1, 1),
    Sketcher.Constraint("Coincident", 1, 2, 2, 1),
    Sketcher.Constraint("Coincident", 2, 2, 3, 1),
    Sketcher.Constraint("Coincident", 3, 2, 0, 1),
    Sketcher.Constraint("Vertical", 0),
    Sketcher.Constraint("Horizontal", 1),
    Sketcher.Constraint("Vertical", 2),
    Sketcher.Constraint("Horizontal", 3),
    Sketcher.Constraint("DistanceX", 1, 2, 1, 1, 22.7),
    Sketcher.Constraint("DistanceY", 0, 2, 0, 1, 12.5),
    Sketcher.Constraint("DistanceY", -1, 1, 0, 2, 8.0),
    Sketcher.Constraint("DistanceX", 0, 2, -1, 1, 7.538619),
])
pocket11 = body.newObject("PartDesign::Pocket", "Pocket010")
pocket11.Profile = sketch16
pocket11.Type = "UpToFirst"
pocket11.Reversed = True

# Sketch on YZ plane
sketch17 = body.newObject("Sketcher::SketchObject", "Sketch016")
sketch17.AttachmentSupport = (doc.getObject("YZ_Plane"), [""])
sketch17.MapMode = "FlatFace"
sketch17.AttachmentOffset = App.Placement(App.Vector(0, 0, 26.111381), App.Rotation())
sketch17.addGeometry([
    Part.LineSegment(App.Vector(4, 86, 0), App.Vector(4, 76, 0)),
    Part.LineSegment(App.Vector(4, 76, 0), App.Vector(14, 86, 0)),
    Part.LineSegment(App.Vector(14, 86, 0), App.Vector(4, 86, 0)),
], False)
sketch17.addConstraint([
    Sketcher.Constraint("Coincident", 0, 2, 1, 1),
    Sketcher.Constraint("Coincident", 1, 2, 2, 1),
    Sketcher.Constraint("Coincident", 2, 2, 0, 1),
    Sketcher.Constraint("Vertical", 0),
    Sketcher.Constraint("Horizontal", 2),
    Sketcher.Constraint("Equal", 2, 0),
    Sketcher.Constraint("DistanceX", 2, 2, 2, 1, 10.0),
    Sketcher.Constraint("DistanceX", -1, 1, 0, 2, 4.0),
    Sketcher.Constraint("DistanceY", -1, 1, 0, 2, 75.732827),
])
pocket12 = body.newObject("PartDesign::Pocket", "Pocket011")
pocket12.Profile = sketch17
pocket12.Type = "ThroughAll"

# Sketch on XZ plane
sketch18 = body.newObject("Sketcher::SketchObject", "Sketch017")
sketch18.AttachmentSupport = (doc.getObject("XZ_Plane"), [""])
sketch18.MapMode = "FlatFace"
sketch18.AttachmentOffset = App.Placement(App.Vector(0, 0, -4), App.Rotation())
sketch18.addGeometry([
    Part.LineSegment(App.Vector(-2, 76, 0), App.Vector(-2, 86, 0)),
    Part.LineSegment(App.Vector(-2, 86, 0), App.Vector(4, 86, 0)),
    Part.LineSegment(App.Vector(4, 86, 0), App.Vector(4, 76, 0)),
    Part.LineSegment(App.Vector(4, 76, 0), App.Vector(-2, 76, 0)),
], False)
sketch18.addConstraint([
    Sketcher.Constraint("Coincident", 0, 2, 1, 1),
    Sketcher.Constraint("Coincident", 1, 2, 2, 1),
    Sketcher.Constraint("Coincident", 2, 2, 3, 1),
    Sketcher.Constraint("Coincident", 3, 2, 0, 1),
    Sketcher.Constraint("Vertical", 0),
    Sketcher.Constraint("Horizontal", 1),
    Sketcher.Constraint("Vertical", 2),
    Sketcher.Constraint("Horizontal", 3),
    Sketcher.Constraint("DistanceX", 1, 1, 1, 2, 6.0),
    Sketcher.Constraint("DistanceY", 0, 1, 0, 2, 10.0),
    Sketcher.Constraint("DistanceX", 0, 2, -1, 1, 1.888619),
    Sketcher.Constraint("DistanceY", -1, 1, 0, 2, 85.732827),
])
pad6 = body.newObject("PartDesign::Pad", "Pad005")
pad6.Profile = sketch18
pad6.Length = 15
pad6.Reversed = True

# Sketch on YZ plane
sketch19 = body.newObject("Sketcher::SketchObject", "Sketch018")
sketch19.AttachmentSupport = (doc.getObject("YZ_Plane"), [""])
sketch19.MapMode = "FlatFace"
sketch19.AttachmentOffset = App.Placement(App.Vector(0, 0, 4.111381), App.Rotation())
sketch19.addGeometry([
    Part.LineSegment(App.Vector(19, 86, 0), App.Vector(4, 76, 0)),
    Part.LineSegment(App.Vector(4, 76, 0), App.Vector(19, 76, 0)),
    Part.LineSegment(App.Vector(19, 76, 0), App.Vector(19, 86, 0)),
], False)
sketch19.addConstraint([
    Sketcher.Constraint("Coincident", 0, 2, 1, 1),
    Sketcher.Constraint("Coincident", 1, 2, 2, 1),
    Sketcher.Constraint("Coincident", 2, 2, 0, 1),
    Sketcher.Constraint("Horizontal", 1),
    Sketcher.Constraint("Vertical", 2),
    Sketcher.Constraint("DistanceX", 1, 1, 1, 2, 15.0),
    Sketcher.Constraint("DistanceY", 2, 1, 2, 2, 10.0),
    Sketcher.Constraint("DistanceX", -1, 1, 0, 2, 4.0),
    Sketcher.Constraint("DistanceY", -1, 1, 0, 2, 75.732827),
])
pocket13 = body.newObject("PartDesign::Pocket", "Pocket012")
pocket13.Profile = sketch19
pocket13.Type = "UpToFirst"

# Sketch on XZ plane
sketch20 = body.newObject("Sketcher::SketchObject", "Sketch019")
sketch20.AttachmentSupport = (doc.getObject("XZ_Plane"), [""])
sketch20.MapMode = "FlatFace"
sketch20.AttachmentOffset = App.Placement(App.Vector(0, 0, 3), App.Rotation())
sketch20.addGeometry([
    Part.Circle(App.Vector(-23.9, 64.7, 0), App.Vector(0, 0, 1), 3),  # 0
    Part.Circle(App.Vector(-23.9, 64.7, 0), App.Vector(0, 0, 1), 1.5),  # 1
    Part.Circle(App.Vector(26.1, 64.7, 0), App.Vector(0, 0, 1), 3),  # 2
    Part.Circle(App.Vector(26.1, 64.7, 0), App.Vector(0, 0, 1), 1.5),  # 3
    Part.Circle(App.Vector(26.1, -20.3, 0), App.Vector(0, 0, 1), 3),  # 4
    Part.Circle(App.Vector(26.1, -20.3, 0), App.Vector(0, 0, 1), 1.5),  # 5
    Part.Circle(App.Vector(-23.9, -20.3, 0), App.Vector(0, 0, 1), 3),  # 6
    Part.Circle(App.Vector(-23.9, -20.3, 0), App.Vector(0, 0, 1), 1.5),  # 7
], False)
sketch20.addConstraint([
    Sketcher.Constraint("Coincident", 1, 3, 0, 3),
    Sketcher.Constraint("Coincident", 3, 3, 2, 3),
    Sketcher.Constraint("Coincident", 5, 3, 4, 3),
    Sketcher.Constraint("Coincident", 7, 3, 6, 3),
    Sketcher.Constraint("Equal", 0, 2),
    Sketcher.Constraint("Equal", 1, 3),
    Sketcher.Constraint("Equal", 2, 4),
    Sketcher.Constraint("Equal", 3, 5),
    Sketcher.Constraint("Equal", 4, 6),
    Sketcher.Constraint("Equal", 5, 7),
    Sketcher.Constraint("Horizontal", 1, 3, 2, 3),
    Sketcher.Constraint("Horizontal", 5, 3, 6, 3),
    Sketcher.Constraint("Vertical", 3, 3, 4, 3),
    Sketcher.Constraint("Vertical", 1, 3, 6, 3),
    Sketcher.Constraint("Diameter", 0, 6.0),
    Sketcher.Constraint("Diameter", 1, 3.0),
    Sketcher.Constraint("DistanceX", 0, 3, 2, 3, 50.0),
    Sketcher.Constraint("DistanceY", 4, 3, 2, 3, 85.0),
    Sketcher.Constraint("DistanceX", 0, 3, -1, 1, 23.888619),
    Sketcher.Constraint("DistanceY", -1, 1, 0, 3, 64.732827),
])
pad7 = body.newObject("PartDesign::Pad", "Pad006")
pad7.Profile = sketch20
pad7.Length = 3
pad7.Reversed = True

doc.recompute()
